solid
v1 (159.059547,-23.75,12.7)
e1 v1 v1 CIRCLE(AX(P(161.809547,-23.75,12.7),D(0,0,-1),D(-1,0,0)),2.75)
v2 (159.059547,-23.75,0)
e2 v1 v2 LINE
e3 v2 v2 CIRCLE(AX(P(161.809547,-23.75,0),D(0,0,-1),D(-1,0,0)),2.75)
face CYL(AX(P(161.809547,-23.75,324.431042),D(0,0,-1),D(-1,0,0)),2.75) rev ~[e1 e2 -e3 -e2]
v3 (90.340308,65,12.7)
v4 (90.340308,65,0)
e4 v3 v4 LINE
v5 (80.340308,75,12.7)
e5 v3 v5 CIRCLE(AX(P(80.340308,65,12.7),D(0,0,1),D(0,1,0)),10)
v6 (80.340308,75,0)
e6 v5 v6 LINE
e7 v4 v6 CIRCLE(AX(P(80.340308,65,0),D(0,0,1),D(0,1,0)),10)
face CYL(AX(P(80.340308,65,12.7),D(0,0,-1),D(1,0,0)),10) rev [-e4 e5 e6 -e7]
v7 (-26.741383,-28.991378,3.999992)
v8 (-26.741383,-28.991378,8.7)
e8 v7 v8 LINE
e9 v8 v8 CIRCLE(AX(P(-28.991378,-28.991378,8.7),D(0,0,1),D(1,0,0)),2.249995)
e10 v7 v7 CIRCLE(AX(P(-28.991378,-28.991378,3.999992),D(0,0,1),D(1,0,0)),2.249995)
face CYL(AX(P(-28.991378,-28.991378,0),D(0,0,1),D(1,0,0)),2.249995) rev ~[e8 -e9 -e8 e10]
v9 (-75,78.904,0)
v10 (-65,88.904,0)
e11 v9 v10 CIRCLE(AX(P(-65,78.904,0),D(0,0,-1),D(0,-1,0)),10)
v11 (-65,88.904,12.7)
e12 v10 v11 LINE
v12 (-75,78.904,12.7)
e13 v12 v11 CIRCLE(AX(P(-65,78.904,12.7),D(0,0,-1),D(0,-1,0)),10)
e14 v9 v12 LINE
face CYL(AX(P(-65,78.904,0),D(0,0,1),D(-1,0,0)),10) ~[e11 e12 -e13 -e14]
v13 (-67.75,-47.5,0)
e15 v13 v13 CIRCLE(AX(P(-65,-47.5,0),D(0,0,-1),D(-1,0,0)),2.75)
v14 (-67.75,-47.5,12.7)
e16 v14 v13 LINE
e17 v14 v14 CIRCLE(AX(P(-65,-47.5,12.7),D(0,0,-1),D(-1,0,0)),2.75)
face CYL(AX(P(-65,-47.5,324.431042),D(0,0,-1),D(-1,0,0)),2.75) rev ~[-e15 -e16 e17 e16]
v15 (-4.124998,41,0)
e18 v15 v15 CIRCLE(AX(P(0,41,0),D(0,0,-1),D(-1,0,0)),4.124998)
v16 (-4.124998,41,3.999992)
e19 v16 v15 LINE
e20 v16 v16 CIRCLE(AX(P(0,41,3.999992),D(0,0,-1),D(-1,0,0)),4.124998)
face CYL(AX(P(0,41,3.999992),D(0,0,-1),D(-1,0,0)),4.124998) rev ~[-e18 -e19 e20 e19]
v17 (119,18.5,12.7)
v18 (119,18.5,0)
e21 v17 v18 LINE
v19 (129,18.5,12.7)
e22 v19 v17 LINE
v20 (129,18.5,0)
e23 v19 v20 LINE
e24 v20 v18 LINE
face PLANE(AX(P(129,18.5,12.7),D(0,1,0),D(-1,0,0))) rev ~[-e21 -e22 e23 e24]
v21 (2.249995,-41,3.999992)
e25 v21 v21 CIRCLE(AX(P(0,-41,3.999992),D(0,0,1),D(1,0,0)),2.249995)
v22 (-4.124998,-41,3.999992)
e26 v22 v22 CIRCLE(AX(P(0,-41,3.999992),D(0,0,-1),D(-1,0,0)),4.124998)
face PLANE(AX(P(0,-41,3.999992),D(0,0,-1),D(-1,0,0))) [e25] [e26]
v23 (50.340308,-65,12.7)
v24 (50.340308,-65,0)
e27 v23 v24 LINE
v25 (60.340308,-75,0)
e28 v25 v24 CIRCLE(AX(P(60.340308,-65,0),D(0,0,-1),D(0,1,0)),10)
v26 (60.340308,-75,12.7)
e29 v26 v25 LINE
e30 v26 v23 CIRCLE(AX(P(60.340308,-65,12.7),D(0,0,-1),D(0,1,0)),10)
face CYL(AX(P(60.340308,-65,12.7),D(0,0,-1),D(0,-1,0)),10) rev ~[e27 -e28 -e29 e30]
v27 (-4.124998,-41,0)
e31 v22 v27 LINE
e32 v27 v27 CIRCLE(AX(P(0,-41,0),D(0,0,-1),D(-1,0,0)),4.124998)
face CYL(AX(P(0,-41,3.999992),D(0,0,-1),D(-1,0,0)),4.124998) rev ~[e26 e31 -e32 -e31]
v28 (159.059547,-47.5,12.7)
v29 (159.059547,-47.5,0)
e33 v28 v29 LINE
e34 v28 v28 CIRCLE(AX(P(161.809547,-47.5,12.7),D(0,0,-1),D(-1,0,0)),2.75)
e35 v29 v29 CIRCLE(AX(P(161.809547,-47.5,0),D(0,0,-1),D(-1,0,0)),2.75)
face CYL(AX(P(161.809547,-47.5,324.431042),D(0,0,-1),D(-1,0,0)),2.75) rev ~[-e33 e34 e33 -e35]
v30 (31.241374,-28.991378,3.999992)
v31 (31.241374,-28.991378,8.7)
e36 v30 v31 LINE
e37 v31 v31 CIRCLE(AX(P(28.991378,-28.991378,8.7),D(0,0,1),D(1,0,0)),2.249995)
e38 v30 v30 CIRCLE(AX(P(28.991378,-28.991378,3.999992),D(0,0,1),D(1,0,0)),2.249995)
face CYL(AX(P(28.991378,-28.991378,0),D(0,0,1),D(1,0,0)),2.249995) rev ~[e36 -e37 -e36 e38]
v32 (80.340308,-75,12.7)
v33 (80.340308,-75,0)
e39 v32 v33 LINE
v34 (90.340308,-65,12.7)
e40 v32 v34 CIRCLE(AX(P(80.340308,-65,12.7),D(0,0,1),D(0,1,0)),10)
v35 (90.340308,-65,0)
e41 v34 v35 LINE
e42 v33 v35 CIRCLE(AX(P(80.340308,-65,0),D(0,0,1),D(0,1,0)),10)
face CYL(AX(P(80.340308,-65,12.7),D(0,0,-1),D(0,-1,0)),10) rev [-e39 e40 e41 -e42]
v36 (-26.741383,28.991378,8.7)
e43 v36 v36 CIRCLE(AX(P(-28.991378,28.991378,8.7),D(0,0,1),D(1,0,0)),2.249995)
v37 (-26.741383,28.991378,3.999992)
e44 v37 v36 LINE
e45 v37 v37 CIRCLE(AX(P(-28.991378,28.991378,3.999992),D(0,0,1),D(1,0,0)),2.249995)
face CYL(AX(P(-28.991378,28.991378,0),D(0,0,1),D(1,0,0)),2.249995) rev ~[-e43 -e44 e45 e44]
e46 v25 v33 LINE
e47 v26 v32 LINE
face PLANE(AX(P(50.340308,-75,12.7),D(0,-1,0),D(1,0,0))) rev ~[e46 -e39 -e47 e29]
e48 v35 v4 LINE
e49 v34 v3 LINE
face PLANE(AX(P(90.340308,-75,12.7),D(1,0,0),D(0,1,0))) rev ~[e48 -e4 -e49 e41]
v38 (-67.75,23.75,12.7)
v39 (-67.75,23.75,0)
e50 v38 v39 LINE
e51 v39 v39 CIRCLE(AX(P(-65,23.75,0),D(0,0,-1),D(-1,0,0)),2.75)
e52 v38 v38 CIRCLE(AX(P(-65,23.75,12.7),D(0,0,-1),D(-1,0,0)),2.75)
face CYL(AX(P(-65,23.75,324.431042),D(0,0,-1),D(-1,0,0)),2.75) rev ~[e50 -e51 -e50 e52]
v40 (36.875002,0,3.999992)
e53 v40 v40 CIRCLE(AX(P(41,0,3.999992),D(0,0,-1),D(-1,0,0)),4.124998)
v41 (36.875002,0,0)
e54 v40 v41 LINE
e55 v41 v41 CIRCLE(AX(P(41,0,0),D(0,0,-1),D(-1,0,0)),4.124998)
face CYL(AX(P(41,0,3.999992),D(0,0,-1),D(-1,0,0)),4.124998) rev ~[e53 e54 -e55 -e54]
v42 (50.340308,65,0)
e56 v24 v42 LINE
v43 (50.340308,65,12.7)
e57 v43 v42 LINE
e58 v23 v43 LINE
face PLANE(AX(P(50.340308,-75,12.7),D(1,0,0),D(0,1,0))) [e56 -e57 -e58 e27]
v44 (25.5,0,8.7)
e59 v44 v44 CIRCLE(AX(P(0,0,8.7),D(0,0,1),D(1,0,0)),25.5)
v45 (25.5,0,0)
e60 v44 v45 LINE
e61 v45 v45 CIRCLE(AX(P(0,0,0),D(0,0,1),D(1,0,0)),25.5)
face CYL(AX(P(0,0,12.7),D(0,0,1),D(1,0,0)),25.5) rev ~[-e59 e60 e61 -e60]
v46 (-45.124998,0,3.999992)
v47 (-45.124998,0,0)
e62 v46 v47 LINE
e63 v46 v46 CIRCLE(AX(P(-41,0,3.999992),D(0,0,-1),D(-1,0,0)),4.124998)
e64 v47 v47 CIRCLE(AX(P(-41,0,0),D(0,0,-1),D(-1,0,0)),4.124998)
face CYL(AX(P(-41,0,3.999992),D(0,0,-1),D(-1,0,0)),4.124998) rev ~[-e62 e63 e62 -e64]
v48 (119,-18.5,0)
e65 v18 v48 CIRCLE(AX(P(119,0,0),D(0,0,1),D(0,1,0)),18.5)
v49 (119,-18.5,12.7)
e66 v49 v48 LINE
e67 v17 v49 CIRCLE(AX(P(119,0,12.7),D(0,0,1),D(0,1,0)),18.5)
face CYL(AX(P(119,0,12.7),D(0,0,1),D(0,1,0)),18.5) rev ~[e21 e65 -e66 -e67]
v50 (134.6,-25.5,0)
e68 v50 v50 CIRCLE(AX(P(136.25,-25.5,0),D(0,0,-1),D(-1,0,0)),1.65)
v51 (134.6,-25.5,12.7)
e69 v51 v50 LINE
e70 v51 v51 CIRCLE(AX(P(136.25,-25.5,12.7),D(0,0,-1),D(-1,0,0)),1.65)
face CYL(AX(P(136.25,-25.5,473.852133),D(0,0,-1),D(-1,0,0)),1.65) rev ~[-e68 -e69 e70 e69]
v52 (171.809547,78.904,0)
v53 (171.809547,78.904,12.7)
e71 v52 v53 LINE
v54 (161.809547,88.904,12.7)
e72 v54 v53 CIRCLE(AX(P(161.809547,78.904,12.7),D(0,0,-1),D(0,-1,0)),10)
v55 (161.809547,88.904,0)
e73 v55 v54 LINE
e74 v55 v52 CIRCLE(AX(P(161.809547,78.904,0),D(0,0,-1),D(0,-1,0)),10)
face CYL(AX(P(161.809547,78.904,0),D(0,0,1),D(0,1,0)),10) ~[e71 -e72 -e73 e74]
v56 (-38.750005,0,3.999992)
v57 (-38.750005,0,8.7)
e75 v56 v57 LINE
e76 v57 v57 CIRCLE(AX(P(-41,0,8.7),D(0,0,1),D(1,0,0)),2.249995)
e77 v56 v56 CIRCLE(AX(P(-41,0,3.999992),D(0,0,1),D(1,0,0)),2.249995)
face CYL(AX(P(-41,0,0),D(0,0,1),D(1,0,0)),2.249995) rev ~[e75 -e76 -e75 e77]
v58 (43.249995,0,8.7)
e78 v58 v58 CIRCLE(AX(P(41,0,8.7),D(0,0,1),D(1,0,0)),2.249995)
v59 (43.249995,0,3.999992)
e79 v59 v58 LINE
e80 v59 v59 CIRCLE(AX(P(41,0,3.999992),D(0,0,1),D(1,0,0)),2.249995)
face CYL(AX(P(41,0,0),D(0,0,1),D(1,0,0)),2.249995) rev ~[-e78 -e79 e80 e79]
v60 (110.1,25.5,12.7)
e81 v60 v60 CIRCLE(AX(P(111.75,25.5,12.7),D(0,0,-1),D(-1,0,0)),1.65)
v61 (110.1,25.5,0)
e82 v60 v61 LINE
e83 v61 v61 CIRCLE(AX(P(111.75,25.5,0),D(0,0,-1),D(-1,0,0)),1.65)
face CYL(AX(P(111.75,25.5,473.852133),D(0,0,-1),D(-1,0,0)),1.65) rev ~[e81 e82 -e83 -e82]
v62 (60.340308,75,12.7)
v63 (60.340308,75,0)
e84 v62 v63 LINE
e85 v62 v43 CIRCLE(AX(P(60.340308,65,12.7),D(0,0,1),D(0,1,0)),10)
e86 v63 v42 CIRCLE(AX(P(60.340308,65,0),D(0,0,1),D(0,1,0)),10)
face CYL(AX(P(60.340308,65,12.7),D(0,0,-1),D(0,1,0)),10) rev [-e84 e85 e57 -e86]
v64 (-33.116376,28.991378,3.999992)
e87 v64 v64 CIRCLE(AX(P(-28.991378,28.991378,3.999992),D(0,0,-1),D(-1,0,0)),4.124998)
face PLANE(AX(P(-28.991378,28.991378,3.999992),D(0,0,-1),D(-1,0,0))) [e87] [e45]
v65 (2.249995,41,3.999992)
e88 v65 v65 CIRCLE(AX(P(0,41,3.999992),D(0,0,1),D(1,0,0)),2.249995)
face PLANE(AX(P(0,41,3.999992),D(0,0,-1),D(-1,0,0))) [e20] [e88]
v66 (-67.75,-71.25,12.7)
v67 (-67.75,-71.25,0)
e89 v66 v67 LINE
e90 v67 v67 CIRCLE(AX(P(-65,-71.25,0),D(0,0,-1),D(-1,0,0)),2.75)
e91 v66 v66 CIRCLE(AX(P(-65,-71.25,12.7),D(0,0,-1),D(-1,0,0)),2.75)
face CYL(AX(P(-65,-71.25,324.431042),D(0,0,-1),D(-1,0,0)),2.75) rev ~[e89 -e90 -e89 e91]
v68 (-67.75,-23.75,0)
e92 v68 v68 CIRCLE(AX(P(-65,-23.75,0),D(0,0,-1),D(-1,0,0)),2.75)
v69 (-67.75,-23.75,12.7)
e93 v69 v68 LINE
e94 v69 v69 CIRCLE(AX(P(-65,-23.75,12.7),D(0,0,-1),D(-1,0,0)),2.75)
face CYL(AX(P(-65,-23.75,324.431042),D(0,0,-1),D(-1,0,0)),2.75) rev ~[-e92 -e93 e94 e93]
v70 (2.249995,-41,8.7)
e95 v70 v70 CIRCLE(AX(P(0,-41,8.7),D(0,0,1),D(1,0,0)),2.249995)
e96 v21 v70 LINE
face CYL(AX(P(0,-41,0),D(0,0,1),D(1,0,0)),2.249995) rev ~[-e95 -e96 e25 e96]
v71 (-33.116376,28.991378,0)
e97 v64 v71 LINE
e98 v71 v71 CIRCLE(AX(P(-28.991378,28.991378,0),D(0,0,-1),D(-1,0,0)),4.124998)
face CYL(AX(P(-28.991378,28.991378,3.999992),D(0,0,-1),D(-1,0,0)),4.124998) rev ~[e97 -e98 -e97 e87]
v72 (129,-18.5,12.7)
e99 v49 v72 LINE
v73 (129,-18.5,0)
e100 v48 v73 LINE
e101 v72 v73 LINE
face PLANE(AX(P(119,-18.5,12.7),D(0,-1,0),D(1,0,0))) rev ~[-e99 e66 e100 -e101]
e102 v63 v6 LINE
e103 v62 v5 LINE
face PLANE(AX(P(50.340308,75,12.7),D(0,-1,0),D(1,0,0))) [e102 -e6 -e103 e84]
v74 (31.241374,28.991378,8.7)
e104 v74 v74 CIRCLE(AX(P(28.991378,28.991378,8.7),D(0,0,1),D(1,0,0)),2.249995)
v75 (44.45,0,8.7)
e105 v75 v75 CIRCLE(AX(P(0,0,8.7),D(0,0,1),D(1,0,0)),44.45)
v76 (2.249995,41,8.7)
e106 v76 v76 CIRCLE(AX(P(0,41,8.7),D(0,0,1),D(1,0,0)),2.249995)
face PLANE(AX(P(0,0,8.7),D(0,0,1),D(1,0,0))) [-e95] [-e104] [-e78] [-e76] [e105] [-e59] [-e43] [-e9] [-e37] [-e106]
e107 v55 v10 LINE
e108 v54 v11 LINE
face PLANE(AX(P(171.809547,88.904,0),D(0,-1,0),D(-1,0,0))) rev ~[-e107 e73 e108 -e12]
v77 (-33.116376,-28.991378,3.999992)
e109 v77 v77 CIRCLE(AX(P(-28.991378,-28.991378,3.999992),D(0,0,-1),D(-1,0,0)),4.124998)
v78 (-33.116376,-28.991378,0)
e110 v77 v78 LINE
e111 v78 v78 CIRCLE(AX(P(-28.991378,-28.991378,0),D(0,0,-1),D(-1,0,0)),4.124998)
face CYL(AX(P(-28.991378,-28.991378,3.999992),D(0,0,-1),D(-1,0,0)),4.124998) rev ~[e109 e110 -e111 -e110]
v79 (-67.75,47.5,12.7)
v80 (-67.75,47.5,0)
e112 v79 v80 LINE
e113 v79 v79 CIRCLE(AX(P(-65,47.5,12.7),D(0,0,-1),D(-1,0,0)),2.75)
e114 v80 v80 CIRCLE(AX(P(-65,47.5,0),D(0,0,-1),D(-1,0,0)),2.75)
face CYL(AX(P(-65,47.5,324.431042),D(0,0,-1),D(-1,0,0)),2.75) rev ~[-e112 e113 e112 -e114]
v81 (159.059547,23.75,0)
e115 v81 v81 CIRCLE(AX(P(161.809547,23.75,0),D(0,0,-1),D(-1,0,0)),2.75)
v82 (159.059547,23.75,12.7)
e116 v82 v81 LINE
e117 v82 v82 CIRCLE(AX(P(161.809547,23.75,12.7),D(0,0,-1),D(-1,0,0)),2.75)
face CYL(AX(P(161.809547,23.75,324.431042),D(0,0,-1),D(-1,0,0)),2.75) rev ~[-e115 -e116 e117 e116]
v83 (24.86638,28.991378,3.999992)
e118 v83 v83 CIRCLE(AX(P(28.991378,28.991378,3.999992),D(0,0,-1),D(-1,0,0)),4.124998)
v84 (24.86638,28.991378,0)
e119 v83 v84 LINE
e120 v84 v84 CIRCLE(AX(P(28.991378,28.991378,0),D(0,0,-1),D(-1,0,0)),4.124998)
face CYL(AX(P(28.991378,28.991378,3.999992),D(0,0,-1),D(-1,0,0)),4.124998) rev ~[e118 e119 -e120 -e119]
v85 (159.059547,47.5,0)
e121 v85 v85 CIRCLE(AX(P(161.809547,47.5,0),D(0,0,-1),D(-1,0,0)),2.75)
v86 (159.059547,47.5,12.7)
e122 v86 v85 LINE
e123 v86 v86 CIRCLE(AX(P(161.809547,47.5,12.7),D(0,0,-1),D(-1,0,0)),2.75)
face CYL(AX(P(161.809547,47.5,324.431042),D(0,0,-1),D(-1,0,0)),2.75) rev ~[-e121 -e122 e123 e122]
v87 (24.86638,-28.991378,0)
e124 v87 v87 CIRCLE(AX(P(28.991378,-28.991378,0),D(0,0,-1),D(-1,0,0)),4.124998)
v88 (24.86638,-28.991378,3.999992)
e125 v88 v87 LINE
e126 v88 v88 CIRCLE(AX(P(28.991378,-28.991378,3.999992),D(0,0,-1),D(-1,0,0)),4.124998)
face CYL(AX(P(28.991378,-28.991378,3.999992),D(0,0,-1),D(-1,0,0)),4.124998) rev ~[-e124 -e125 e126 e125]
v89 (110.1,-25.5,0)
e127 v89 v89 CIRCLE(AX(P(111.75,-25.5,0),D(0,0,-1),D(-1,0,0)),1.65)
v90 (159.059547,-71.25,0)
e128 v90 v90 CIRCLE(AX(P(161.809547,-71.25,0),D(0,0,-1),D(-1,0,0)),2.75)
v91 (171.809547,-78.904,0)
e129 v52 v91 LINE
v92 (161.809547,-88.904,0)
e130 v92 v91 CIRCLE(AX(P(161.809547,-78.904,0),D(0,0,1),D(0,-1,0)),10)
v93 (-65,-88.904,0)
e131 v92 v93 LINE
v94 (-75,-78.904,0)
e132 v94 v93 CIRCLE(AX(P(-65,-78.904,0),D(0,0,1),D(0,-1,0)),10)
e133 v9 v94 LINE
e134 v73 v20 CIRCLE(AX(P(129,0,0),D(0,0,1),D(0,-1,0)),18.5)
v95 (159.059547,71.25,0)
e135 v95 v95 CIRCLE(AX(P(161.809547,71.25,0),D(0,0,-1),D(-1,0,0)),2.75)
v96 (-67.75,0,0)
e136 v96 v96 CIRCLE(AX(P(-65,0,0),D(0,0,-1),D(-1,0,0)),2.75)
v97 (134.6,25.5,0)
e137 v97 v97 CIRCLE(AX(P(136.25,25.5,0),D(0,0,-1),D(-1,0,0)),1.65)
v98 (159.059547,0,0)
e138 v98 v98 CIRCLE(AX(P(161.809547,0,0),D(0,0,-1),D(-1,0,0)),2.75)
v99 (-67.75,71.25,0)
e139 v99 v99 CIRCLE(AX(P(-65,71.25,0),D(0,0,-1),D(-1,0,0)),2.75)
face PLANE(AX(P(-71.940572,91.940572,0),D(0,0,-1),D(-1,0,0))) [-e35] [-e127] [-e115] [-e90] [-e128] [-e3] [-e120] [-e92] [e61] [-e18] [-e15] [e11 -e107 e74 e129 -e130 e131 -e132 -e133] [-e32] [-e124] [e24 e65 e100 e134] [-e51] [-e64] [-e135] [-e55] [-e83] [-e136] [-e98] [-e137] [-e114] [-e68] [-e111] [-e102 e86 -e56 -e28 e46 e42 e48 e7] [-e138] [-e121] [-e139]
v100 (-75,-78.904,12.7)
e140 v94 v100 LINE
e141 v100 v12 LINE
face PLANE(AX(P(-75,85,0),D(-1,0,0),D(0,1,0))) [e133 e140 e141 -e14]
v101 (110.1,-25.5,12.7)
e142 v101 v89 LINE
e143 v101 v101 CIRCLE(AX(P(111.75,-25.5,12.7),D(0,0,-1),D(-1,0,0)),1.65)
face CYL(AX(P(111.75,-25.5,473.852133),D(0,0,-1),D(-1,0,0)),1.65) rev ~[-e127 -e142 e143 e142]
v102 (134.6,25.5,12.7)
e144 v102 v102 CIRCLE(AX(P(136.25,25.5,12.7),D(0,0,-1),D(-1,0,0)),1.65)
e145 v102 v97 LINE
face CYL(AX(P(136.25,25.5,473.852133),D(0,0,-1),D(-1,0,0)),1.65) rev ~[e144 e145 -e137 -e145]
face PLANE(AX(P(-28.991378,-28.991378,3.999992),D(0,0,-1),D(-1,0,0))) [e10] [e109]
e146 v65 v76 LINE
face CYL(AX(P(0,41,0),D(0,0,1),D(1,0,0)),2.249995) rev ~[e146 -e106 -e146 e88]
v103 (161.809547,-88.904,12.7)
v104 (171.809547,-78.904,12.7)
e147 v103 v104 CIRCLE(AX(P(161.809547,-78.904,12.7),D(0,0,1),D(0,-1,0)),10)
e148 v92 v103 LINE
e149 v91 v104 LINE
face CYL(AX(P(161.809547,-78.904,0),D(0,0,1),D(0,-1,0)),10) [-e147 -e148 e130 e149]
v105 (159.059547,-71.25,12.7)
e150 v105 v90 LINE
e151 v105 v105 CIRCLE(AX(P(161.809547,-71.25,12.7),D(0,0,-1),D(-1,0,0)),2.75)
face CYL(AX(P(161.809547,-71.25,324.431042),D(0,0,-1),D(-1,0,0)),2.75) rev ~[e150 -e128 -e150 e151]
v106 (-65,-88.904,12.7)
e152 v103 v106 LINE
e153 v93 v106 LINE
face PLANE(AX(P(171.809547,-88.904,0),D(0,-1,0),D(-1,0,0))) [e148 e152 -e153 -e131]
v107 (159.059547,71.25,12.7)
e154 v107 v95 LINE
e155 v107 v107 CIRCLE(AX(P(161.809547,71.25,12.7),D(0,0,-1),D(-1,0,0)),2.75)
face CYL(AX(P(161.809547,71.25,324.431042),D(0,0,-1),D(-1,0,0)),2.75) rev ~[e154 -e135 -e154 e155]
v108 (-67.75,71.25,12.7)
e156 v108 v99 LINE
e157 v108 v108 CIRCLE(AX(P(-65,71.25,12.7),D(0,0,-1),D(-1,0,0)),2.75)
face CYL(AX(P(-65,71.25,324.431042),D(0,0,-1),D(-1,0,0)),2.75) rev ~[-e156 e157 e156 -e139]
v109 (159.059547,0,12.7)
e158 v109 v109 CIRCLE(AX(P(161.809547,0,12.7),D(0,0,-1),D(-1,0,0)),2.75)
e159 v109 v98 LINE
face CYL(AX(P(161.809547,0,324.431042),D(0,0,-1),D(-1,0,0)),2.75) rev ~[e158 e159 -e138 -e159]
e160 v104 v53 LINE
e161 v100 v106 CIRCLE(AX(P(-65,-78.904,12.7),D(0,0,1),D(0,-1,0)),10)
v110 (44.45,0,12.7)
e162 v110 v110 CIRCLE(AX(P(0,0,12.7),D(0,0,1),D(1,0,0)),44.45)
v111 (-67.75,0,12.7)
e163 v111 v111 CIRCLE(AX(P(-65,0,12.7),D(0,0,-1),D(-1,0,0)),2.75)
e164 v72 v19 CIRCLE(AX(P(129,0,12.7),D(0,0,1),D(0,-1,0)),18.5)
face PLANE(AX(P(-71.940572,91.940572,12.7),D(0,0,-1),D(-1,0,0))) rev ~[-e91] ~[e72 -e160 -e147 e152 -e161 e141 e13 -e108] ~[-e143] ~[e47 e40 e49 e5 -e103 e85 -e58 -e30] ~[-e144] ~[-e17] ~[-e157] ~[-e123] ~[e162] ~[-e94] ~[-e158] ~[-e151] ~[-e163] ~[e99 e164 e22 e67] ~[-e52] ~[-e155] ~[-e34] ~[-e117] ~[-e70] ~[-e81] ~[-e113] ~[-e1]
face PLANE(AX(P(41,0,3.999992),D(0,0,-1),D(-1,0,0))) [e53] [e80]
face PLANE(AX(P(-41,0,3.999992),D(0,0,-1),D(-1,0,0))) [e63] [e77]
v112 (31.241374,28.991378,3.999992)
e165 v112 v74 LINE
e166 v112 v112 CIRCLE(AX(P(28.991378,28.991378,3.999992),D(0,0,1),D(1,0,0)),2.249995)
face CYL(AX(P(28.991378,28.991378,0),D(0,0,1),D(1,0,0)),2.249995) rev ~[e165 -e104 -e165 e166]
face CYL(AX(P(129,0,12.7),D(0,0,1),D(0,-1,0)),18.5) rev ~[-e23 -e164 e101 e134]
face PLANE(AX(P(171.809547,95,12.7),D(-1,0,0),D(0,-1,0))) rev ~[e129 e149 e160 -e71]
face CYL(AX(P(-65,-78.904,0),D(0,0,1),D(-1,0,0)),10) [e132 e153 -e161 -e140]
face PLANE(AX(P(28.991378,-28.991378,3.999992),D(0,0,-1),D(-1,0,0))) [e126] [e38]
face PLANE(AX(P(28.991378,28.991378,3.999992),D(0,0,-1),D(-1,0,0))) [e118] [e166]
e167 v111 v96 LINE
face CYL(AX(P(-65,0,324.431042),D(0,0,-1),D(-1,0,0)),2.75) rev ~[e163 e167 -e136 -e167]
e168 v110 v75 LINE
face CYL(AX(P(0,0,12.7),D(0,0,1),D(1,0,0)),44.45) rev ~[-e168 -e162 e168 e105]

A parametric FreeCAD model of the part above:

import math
import FreeCAD as App
import Part
import Sketcher

V = App.Vector
Q = App.Units.Quantity


def edges_at(feature, points):
    """Names of the edges that pass closest to the given points."""
    edges = feature.Shape.Edges
    near = lambda p: min(range(len(edges)), key=lambda i: edges[i].distToShape(Part.Vertex(*p))[0])
    return sorted({f"Edge{near(p) + 1}" for p in points})


def add_polygon(sketch, points):
    """Adds a closed chain of lines whose ends are joined by coincident constraints."""
    first, n = sketch.GeometryCount, len(points)
    for a, b in zip(points, points[1:] + points[:1]):
        sketch.addGeometry(Part.LineSegment(App.Vector(*a, 0), App.Vector(*b, 0)), False)
    for i in range(n):
        sketch.addConstraint(Sketcher.Constraint("Coincident", first + i, 2, first + (i + 1) % n, 1))

doc = App.newDocument("Part")
body = doc.addObject("PartDesign::Body", "Body")

# Sketch on XY plane
sketch1 = body.newObject("Sketcher::SketchObject", "Sketch")
sketch1.AttachmentSupport = (doc.getObject("XY_Plane"), [""])
sketch1.MapMode = "FlatFace"
add_polygon(sketch1, [(-210, 95), (-210, -95), (210, -95), (210, 95)])  # lines 0-3
sketch1.addConstraint([
    Sketcher.Constraint("Vertical", 0),
    Sketcher.Constraint("Horizontal", 1),
    Sketcher.Constraint("Vertical", 2),
    Sketcher.Constraint("Horizontal", 3),
    Sketcher.Constraint("Symmetric", 0, 2, 2, 2, -1, 1),
    Sketcher.Constraint("DistanceX", 1, 1, 1, 2, Q("420 mm")),
    Sketcher.Constraint("DistanceY", 0, 2, 0, 1, Q("190 mm")),
])
pad1 = body.newObject("PartDesign::Pad", "Pad")
pad1.Profile = sketch1
pad1.Length = 12.7
doc.recompute()

fillet = body.newObject("PartDesign::Fillet", "Fillet")
fillet.Base = (pad1, edges_at(pad1, [
    (210, -95, 6.35),
    (-210, -95, 6.35),
    (-210, 95, 6.35),
    (210, 95, 6.35),
]))
fillet.Radius = 10

# Sketch on XY plane
sketch2 = body.newObject("Sketcher::SketchObject", "Sketch001")
sketch2.AttachmentSupport = (doc.getObject("XY_Plane"), [""])
sketch2.MapMode = "FlatFace"
sketch2.AttachmentOffset = App.Placement(V(0, 0, 12.7), App.Rotation())
sketch2.addGeometry(Part.Circle(V(0, 0, 0), V(0, 0, 1), 44), False)
sketch2.addConstraint([
    Sketcher.Constraint("Coincident", 0, 3, -1, 1),
    Sketcher.Constraint("Diameter", 0, Q("88.9 mm")),
])
pocket1 = body.newObject("PartDesign::Pocket", "Pocket")
pocket1.Profile = sketch2
pocket1.Length = 4

# Sketch on XY plane
sketch3 = body.newObject("Sketcher::SketchObject", "Sketch002")
sketch3.AttachmentSupport = (doc.getObject("XY_Plane"), [""])
sketch3.MapMode = "FlatFace"
sketch3.AttachmentOffset = App.Placement(V(0, 0, 12.7), App.Rotation())
sketch3.addGeometry(Part.Circle(V(0, 0, 0), V(0, 0, 1), 26), False)
sketch3.addConstraint([
    Sketcher.Constraint("Coincident", 0, 3, -1, 1),
    Sketcher.Constraint("Diameter", 0, Q("51 mm")),
])
pocket2 = body.newObject("PartDesign::Pocket", "Pocket001")
pocket2.Profile = sketch3
pocket2.Type = "ThroughAll"

# Sketch on XY plane
sketch4 = body.newObject("Sketcher::SketchObject", "Sketch003")
sketch4.AttachmentSupport = (doc.getObject("XY_Plane"), [""])
sketch4.MapMode = "FlatFace"
sketch4.addGeometry([
    Part.Circle(V(0, 41, 0), V(0, 0, 1), 2.2),  # 0
    Part.Circle(V(0, -41, 0), V(0, 0, 1), 2.2),  # 1
    Part.Circle(V(-29, -29, 0), V(0, 0, 1), 2.2),  # 2
    Part.Circle(V(29, -29, 0), V(0, 0, 1), 2.2),  # 3
    Part.Circle(V(41, 0, 0), V(0, 0, 1), 2.2),  # 4
    Part.Circle(V(-41, 0, 0), V(0, 0, 1), 2.2),  # 5
    Part.Circle(V(29, 29, 0), V(0, 0, 1), 2.2),  # 6
    Part.Circle(V(-29, 29, 0), V(0, 0, 1), 2.2),  # 7
], False)
sketch4.addConstraint([
    Sketcher.Constraint("Equal", 0, 1),
    Sketcher.Constraint("Equal", 1, 2),
    Sketcher.Constraint("Equal", 2, 3),
    Sketcher.Constraint("Equal", 3, 4),
    Sketcher.Constraint("Equal", 4, 5),
    Sketcher.Constraint("Equal", 5, 6),
    Sketcher.Constraint("Equal", 6, 7),
    Sketcher.Constraint("Symmetric", 0, 3, 1, 3, -1, 1),
    Sketcher.Constraint("Symmetric", 4, 3, 5, 3, -1, 1),
    Sketcher.Constraint("Symmetric", 2, 3, 6, 3, -1, 1),
    Sketcher.Constraint("Symmetric", 3, 3, 7, 3, -1, 1),
    Sketcher.Constraint("Symmetric", 2, 3, 3, 3, -2),
    Sketcher.Constraint("PointOnObject", 0, 3, -2),
    Sketcher.Constraint("PointOnObject", 4, 3, -1),
    Sketcher.Constraint("DistanceY", -1, 1, 0, 3, Q("41 mm")),
    Sketcher.Constraint("DistanceX", -1, 1, 4, 3, Q("41 mm")),
    Sketcher.Constraint("Diameter", 0, Q("4.499991 mm")),
    Sketcher.Constraint("DistanceX", 2, 3, -1, 1, Q("28.991378 mm")),
    Sketcher.Constraint("DistanceY", 2, 3, -1, 1, Q("28.991378 mm")),
])
doc.recompute()
hole = body.newObject("PartDesign::Hole", "Hole")
hole.Profile = sketch4
hole.ThreadType = "None"
hole.Diameter = 4.499991
hole.DepthType = "Dimension"
hole.Depth = 10
hole.DrillPoint = "Angled"
hole.DrillPointAngle = 118
hole.HoleCutType = "Counterbore"
hole.HoleCutDiameter = 8.249996
hole.HoleCutDepth = 3.999992
hole.Reversed = True

# Sketch on XY plane
sketch5 = body.newObject("Sketcher::SketchObject", "Sketch004")
sketch5.AttachmentSupport = (doc.getObject("XY_Plane"), [""])
sketch5.MapMode = "FlatFace"
sketch5.AttachmentOffset = App.Placement(V(0, 0, 12.7), App.Rotation())
sketch5.addGeometry([
    Part.LineSegment(V(119, -18, 0), V(129, -18, 0)),
    Part.ArcOfCircle(Part.Circle(V(129, 0, 0), V(0, 0, 1), 18), math.radians(-90), math.radians(90)),
    Part.LineSegment(V(129, 18, 0), V(119, 18, 0)),
    Part.ArcOfCircle(Part.Circle(V(119, 0, 0), V(0, 0, 1), 18), math.radians(90), math.radians(270)),
], False)
sketch5.addConstraint([
    Sketcher.Constraint("Tangent", 0, 2, 1, 1),
    Sketcher.Constraint("Tangent", 1, 2, 2, 1),
    Sketcher.Constraint("Tangent", 2, 2, 3, 1),
    Sketcher.Constraint("Tangent", 3, 2, 0, 1),
    Sketcher.Constraint("Horizontal", 0),
    Sketcher.Constraint("Horizontal", 2),
    Sketcher.Constraint("PointOnObject", 1, 3, -1),
    Sketcher.Constraint("Radius", 1, Q("18.5 mm")),
    Sketcher.Constraint("DistanceX", 0, 1, 0, 2, Q("10 mm")),
    Sketcher.Constraint("DistanceX", -1, 1, 1, 3, Q("129 mm")),
])
pocket3 = body.newObject("PartDesign::Pocket", "Pocket002")
pocket3.Profile = sketch5
pocket3.Type = "ThroughAll"

# Sketch on XY plane
sketch6 = body.newObject("Sketcher::SketchObject", "Sketch005")
sketch6.AttachmentSupport = (doc.getObject("XY_Plane"), [""])
sketch6.MapMode = "FlatFace"
sketch6.AttachmentOffset = App.Placement(V(0, 0, 12.7), App.Rotation())
sketch6.addGeometry([
    Part.Circle(V(111.8, 25.5, 0), V(0, 0, 1), 1.6),
    Part.Circle(V(136.2, 25.5, 0), V(0, 0, 1), 1.6),
    Part.Circle(V(111.8, -25.5, 0), V(0, 0, 1), 1.6),
    Part.Circle(V(136.2, -25.5, 0), V(0, 0, 1), 1.6),
], False)
sketch6.addConstraint([
    Sketcher.Constraint("Equal", 0, 1),
    Sketcher.Constraint("Equal", 1, 2),
    Sketcher.Constraint("Equal", 2, 3),
    Sketcher.Constraint("Symmetric", 0, 3, 2, 3, -1),
    Sketcher.Constraint("Symmetric", 1, 3, 3, 3, -1),
    Sketcher.Constraint("Horizontal", 0, 3, 1, 3),
    Sketcher.Constraint("Diameter", 0, Q("3.3 mm")),
    Sketcher.Constraint("DistanceY", 2, 3, 0, 3, Q("51 mm")),
    Sketcher.Constraint("DistanceX", 0, 3, 1, 3, Q("24.5 mm")),
    Sketcher.Constraint("DistanceX", -1, 1, 0, 3, Q("111.75 mm")),
])
doc.recompute()
hole2 = body.newObject("PartDesign::Hole", "Hole001")
hole2.Profile = sketch6
hole2.ThreadType = "None"
hole2.Diameter = 3.3
hole2.DepthType = "ThroughAll"

# Sketch on XY plane
sketch7 = body.newObject("Sketcher::SketchObject", "Sketch006")
sketch7.AttachmentSupport = (doc.getObject("XY_Plane"), [""])
sketch7.MapMode = "FlatFace"
sketch7.AttachmentOffset = App.Placement(V(0, 0, 12.7), App.Rotation())
add_polygon(sketch7, [(-210, 95), (-210, -95), (-75, -95), (-75, 95)])  # lines 0-3
sketch7.addConstraint([
    Sketcher.Constraint("Vertical", 0),
    Sketcher.Constraint("Horizontal", 1),
    Sketcher.Constraint("Vertical", 2),
    Sketcher.Constraint("Horizontal", 3),
    Sketcher.Constraint("DistanceX", 1, 1, 1, 2, Q("135 mm")),
    Sketcher.Constraint("DistanceY", 0, 2, 0, 1, Q("190 mm")),
    Sketcher.Constraint("DistanceX", 0, 2, -1, 1, Q("210 mm")),
    Sketcher.Constraint("DistanceY", 0, 2, -1, 1, Q("95 mm")),
])
pocket4 = body.newObject("PartDesign::Pocket", "Pocket003")
pocket4.Profile = sketch7
pocket4.Type = "ThroughAll"
doc.recompute()

fillet2 = body.newObject("PartDesign::Fillet", "Fillet001")
fillet2.Base = (pocket4, edges_at(pocket4, [(-75, 95, 6.35), (-75, -95, 6.35)]))
fillet2.Radius = 10

# Sketch on XY plane
sketch8 = body.newObject("Sketcher::SketchObject", "Sketch007")
sketch8.AttachmentSupport = (doc.getObject("XY_Plane"), [""])
sketch8.MapMode = "FlatFace"
sketch8.AttachmentOffset = App.Placement(V(0, 0, 12.7), App.Rotation())
add_polygon(sketch8, [(172, 75), (172, -75), (210, -75), (210, 75)])  # lines 0-3
sketch8.addConstraint([
    Sketcher.Constraint("Vertical", 0),
    Sketcher.Constraint("Horizontal", 1),
    Sketcher.Constraint("Vertical", 2),
    Sketcher.Constraint("Horizontal", 3),
    Sketcher.Constraint("DistanceY", 0, 2, 0, 1, Q("150 mm")),
    Sketcher.Constraint("DistanceY", 0, 2, -1, 1, Q("75 mm")),
    Sketcher.Constraint("DistanceX", -1, 1, 1, 2, Q("210 mm")),
    Sketcher.Constraint("DistanceX", 1, 1, 1, 2, Q("38.190453 mm")),
])
pocket5 = body.newObject("PartDesign::Pocket", "Pocket004")
pocket5.Profile = sketch8
pocket5.Type = "ThroughAll"

# Sketch on XY plane
sketch9 = body.newObject("Sketcher::SketchObject", "Sketch008")
sketch9.AttachmentSupport = (doc.getObject("XY_Plane"), [""])
sketch9.MapMode = "FlatFace"
sketch9.AttachmentOffset = App.Placement(V(0, 0, 12.7), App.Rotation())
add_polygon(sketch9, [(50, 75), (50, -75), (90, -75), (90, 75)])  # lines 0-3
sketch9.addConstraint([
    Sketcher.Constraint("Vertical", 0),
    Sketcher.Constraint("Horizontal", 1),
    Sketcher.Constraint("Vertical", 2),
    Sketcher.Constraint("Horizontal", 3),
    Sketcher.Constraint("DistanceX", 1, 1, 1, 2, Q("40 mm")),
    Sketcher.Constraint("DistanceY", 0, 2, 0, 1, Q("150 mm")),
    Sketcher.Constraint("DistanceY", 0, 2, -1, 1, Q("75 mm")),
    Sketcher.Constraint("DistanceX", -1, 1, 0, 2, Q("50.340308 mm")),
])
pocket6 = body.newObject("PartDesign::Pocket", "Pocket005")
pocket6.Profile = sketch9
pocket6.Type = "ThroughAll"
doc.recompute()

fillet3 = body.newObject("PartDesign::Fillet", "Fillet002")
fillet3.Base = (pocket6, edges_at(pocket6, [
    (90.34, 75, 6.35),
    (90.34, -75, 6.35),
    (50.34, -75, 6.35),
    (50.34, 75, 6.35),
]))
fillet3.Radius = 10

# Sketch on XY plane
sketch10 = body.newObject("Sketcher::SketchObject", "Sketch009")
sketch10.AttachmentSupport = (doc.getObject("XY_Plane"), [""])
sketch10.MapMode = "FlatFace"
sketch10.AttachmentOffset = App.Placement(V(0, 0, 12.7), App.Rotation())
add_polygon(sketch10, [(172, -95), (219, -95), (219, 95), (172, 95)])  # lines 0-3
sketch10.addConstraint([
    Sketcher.Constraint("Horizontal", 0),
    Sketcher.Constraint("Vertical", 1),
    Sketcher.Constraint("Horizontal", 2),
    Sketcher.Constraint("Vertical", 3),
    Sketcher.Constraint("DistanceY", 1, 1, 1, 2, Q("190 mm")),
    Sketcher.Constraint("DistanceY", 0, 2, -1, 1, Q("95 mm")),
    Sketcher.Constraint("DistanceX", 0, 1, 0, 2, Q("47.576998 mm")),
    Sketcher.Constraint("DistanceX", -1, 1, 0, 2, Q("219.386545 mm")),
])
pocket7 = body.newObject("PartDesign::Pocket", "Pocket006")
pocket7.Profile = sketch10
pocket7.Type = "ThroughAll"
pocket7.Midplane = True
doc.recompute()

fillet4 = body.newObject("PartDesign::Fillet", "Fillet003")
fillet4.Base = (pocket7, edges_at(pocket7, [(171.81, -95, 6.35), (171.81, 95, 6.35)]))
fillet4.Radius = 10

# Sketch on XY plane
sketch11 = body.newObject("Sketcher::SketchObject", "Sketch010")
sketch11.AttachmentSupport = (doc.getObject("XY_Plane"), [""])
sketch11.MapMode = "FlatFace"
sketch11.AttachmentOffset = App.Placement(V(0, 0, 12.7), App.Rotation())
sketch11.addGeometry([
    Part.Circle(V(161.8, -71.2, 0), V(0, 0, 1), 2.8),  # 0
    Part.Circle(V(161.8, -47.5, 0), V(0, 0, 1), 2.8),  # 1
    Part.Circle(V(161.8, -23.8, 0), V(0, 0, 1), 2.8),  # 2
    Part.Circle(V(161.8, 0, 0), V(0, 0, 1), 2.8),  # 3
    Part.Circle(V(161.8, 23.8, 0), V(0, 0, 1), 2.8),  # 4
    Part.Circle(V(161.8, 47.5, 0), V(0, 0, 1), 2.8),  # 5
    Part.Circle(V(161.8, 71.2, 0), V(0, 0, 1), 2.8),  # 6
    Part.Circle(V(-65, 71.2, 0), V(0, 0, 1), 2.8),  # 7
    Part.Circle(V(-65, 47.5, 0), V(0, 0, 1), 2.8),  # 8
    Part.Circle(V(-65, 23.8, 0), V(0, 0, 1), 2.8),  # 9
    Part.Circle(V(-65, 0, 0), V(0, 0, 1), 2.8),  # 10
    Part.Circle(V(-65, -23.8, 0), V(0, 0, 1), 2.8),  # 11
    Part.Circle(V(-65, -47.5, 0), V(0, 0, 1), 2.8),  # 12
    Part.Circle(V(-65, -71.2, 0), V(0, 0, 1), 2.8),  # 13
], False)
sketch11.addConstraint([
    Sketcher.Constraint("Equal", 0, 1),
    Sketcher.Constraint("Equal", 1, 2),
    Sketcher.Constraint("Equal", 2, 3),
    Sketcher.Constraint("Equal", 3, 4),
    Sketcher.Constraint("Equal", 4, 5),
    Sketcher.Constraint("Equal", 5, 6),
    Sketcher.Constraint("Equal", 6, 7),
    Sketcher.Constraint("Equal", 7, 8),
    Sketcher.Constraint("Equal", 8, 9),
    Sketcher.Constraint("Equal", 9, 10),
    Sketcher.Constraint("Equal", 10, 11),
    Sketcher.Constraint("Equal", 11, 12),
    Sketcher.Constraint("Equal", 12, 13),
    Sketcher.Constraint("Symmetric", 2, 3, 4, 3, -1),
    Sketcher.Constraint("Symmetric", 1, 3, 5, 3, -1),
    Sketcher.Constraint("Symmetric", 0, 3, 6, 3, -1),
    Sketcher.Constraint("Symmetric", 9, 3, 11, 3, -1),
    Sketcher.Constraint("Symmetric", 8, 3, 12, 3, -1),
    Sketcher.Constraint("Symmetric", 7, 3, 13, 3, -1),
    Sketcher.Constraint("PointOnObject", 3, 3, -1),
    Sketcher.Constraint("PointOnObject", 10, 3, -1),
    Sketcher.Constraint("Horizontal", 6, 3, 7, 3),
    Sketcher.Constraint("Horizontal", 5, 3, 8, 3),
    Sketcher.Constraint("Horizontal", 4, 3, 9, 3),
    Sketcher.Constraint("Vertical", 0, 3, 1, 3),
    Sketcher.Constraint("Vertical", 1, 3, 2, 3),
    Sketcher.Constraint("Vertical", 2, 3, 3, 3),
    Sketcher.Constraint("Vertical", 7, 3, 8, 3),
    Sketcher.Constraint("Vertical", 8, 3, 9, 3),
    Sketcher.Constraint("Vertical", 9, 3, 10, 3),
    Sketcher.Constraint("Diameter", 0, Q("5.5 mm")),
    Sketcher.Constraint("DistanceX", 7, 3, -1, 1, Q("65 mm")),
    Sketcher.Constraint("DistanceY", 0, 3, 4, 3, Q("95 mm")),
    Sketcher.Constraint("DistanceY", 1, 3, 5, 3, Q("95 mm")),
    Sketcher.Constraint("DistanceY", 0, 3, 2, 3, Q("47.5 mm")),
    Sketcher.Constraint("DistanceX", -1, 1, 0, 3, Q("161.809547 mm")),
])
doc.recompute()
hole3 = body.newObject("PartDesign::Hole", "Hole002")
hole3.Profile = sketch11
hole3.ThreadType = "None"
hole3.Diameter = 5.5
hole3.DepthType = "ThroughAll"

# Sketch on XY plane
sketch12 = body.newObject("Sketcher::SketchObject", "Sketch011")
sketch12.AttachmentSupport = (doc.getObject("XY_Plane"), [""])
sketch12.MapMode = "FlatFace"
sketch12.addGeometry([
    Part.LineSegment(V(-75, 85, 0), V(-75, 95, 0)),  # 0
    Part.LineSegment(V(-75, 95, 0), V(-65, 95, 0)),  # 1
    Part.ArcOfCircle(Part.Circle(V(-65, 85, 0), V(0, 0, 1), 10), math.radians(90), math.radians(180)),  # 2
    Part.LineSegment(V(-65, -95, 0), V(-75, -95, 0)),  # 3
    Part.LineSegment(V(-75, -95, 0), V(-75, -85, 0)),  # 4
    Part.ArcOfCircle(Part.Circle(V(-65, -85, 0), V(0, 0, 1), 10), math.radians(180), math.radians(270)),  # 5
    Part.LineSegment(V(172, -85, 0), V(172, -95, 0)),  # 6
    Part.LineSegment(V(172, -95, 0), V(162, -95, 0)),  # 7
    Part.ArcOfCircle(Part.Circle(V(162, -85, 0), V(0, 0, 1), 10), math.radians(-90), math.radians(0)),  # 8
    Part.LineSegment(V(162, 95, 0), V(172, 95, 0)),  # 9
    Part.LineSegment(V(172, 95, 0), V(172, 85, 0)),  # 10
    Part.ArcOfCircle(Part.Circle(V(162, 85, 0), V(0, 0, 1), 10), math.radians(0), math.radians(90)),  # 11
], False)
sketch12.addConstraint([
    Sketcher.Constraint("Coincident", 0, 2, 1, 1),
    Sketcher.Constraint("Tangent", 1, 2, 2, 1),
    Sketcher.Constraint("Tangent", 2, 2, 0, 1),
    Sketcher.Constraint("Coincident", 3, 2, 4, 1),
    Sketcher.Constraint("Tangent", 4, 2, 5, 1),
    Sketcher.Constraint("Tangent", 5, 2, 3, 1),
    Sketcher.Constraint("Coincident", 6, 2, 7, 1),
    Sketcher.Constraint("Tangent", 7, 2, 8, 1),
    Sketcher.Constraint("Tangent", 8, 2, 6, 1),
    Sketcher.Constraint("Coincident", 9, 2, 10, 1),
    Sketcher.Constraint("Tangent", 10, 2, 11, 1),
    Sketcher.Constraint("Tangent", 11, 2, 9, 1),
    Sketcher.Constraint("Vertical", 0),
    Sketcher.Constraint("Horizontal", 1),
    Sketcher.Constraint("Horizontal", 3),
    Sketcher.Constraint("Vertical", 4),
    Sketcher.Constraint("Vertical", 6),
    Sketcher.Constraint("Horizontal", 7),
    Sketcher.Constraint("Horizontal", 9),
    Sketcher.Constraint("Vertical", 10),
    Sketcher.Constraint("Equal", 2, 5),
    Sketcher.Constraint("Equal", 5, 8),
    Sketcher.Constraint("Equal", 8, 11),
    Sketcher.Constraint("Symmetric", 2, 3, 5, 3, -1),
    Sketcher.Constraint("Symmetric", 8, 3, 11, 3, -1),
    Sketcher.Constraint("Horizontal", 5, 3, 8, 3),
    Sketcher.Constraint("Radius", 2, Q("10 mm")),
    Sketcher.Constraint("DistanceX", 2, 3, -1, 1, Q("65 mm")),
    Sketcher.Constraint("DistanceY", -1, 1, 2, 3, Q("85 mm")),
    Sketcher.Constraint("DistanceX", -1, 1, 8, 3, Q("161.809547 mm")),
])
pad2 = body.newObject("PartDesign::Pad", "Pad001")
pad2.Profile = sketch12
pad2.Length = 12.7

# Sketch on XY plane
sketch13 = body.newObject("Sketcher::SketchObject", "Sketch012")
sketch13.AttachmentSupport = (doc.getObject("XY_Plane"), [""])
sketch13.MapMode = "FlatFace"
add_polygon(sketch13, [(172, 95), (172, 89), (-75, 89), (-75, 95)])  # lines 0-3
add_polygon(sketch13, [(172, -89), (172, -95), (-75, -95), (-75, -89)])  # lines 4-7
sketch13.addConstraint([
    Sketcher.Constraint("Vertical", 0),
    Sketcher.Constraint("Horizontal", 1),
    Sketcher.Constraint("Vertical", 2),
    Sketcher.Constraint("Horizontal", 3),
    Sketcher.Constraint("Vertical", 4),
    Sketcher.Constraint("Horizontal", 5),
    Sketcher.Constraint("Vertical", 6),
    Sketcher.Constraint("Horizontal", 7),
    Sketcher.Constraint("Symmetric", 3, 2, 4, 2, -1),
    Sketcher.Constraint("Symmetric", 1, 2, 6, 2, -1),
    Sketcher.Constraint("DistanceX", 1, 2, -1, 1, Q("75 mm")),
    Sketcher.Constraint("DistanceY", -1, 1, 2, 2, Q("95 mm")),
    Sketcher.Constraint("DistanceY", 0, 2, 0, 1, Q("6.096 mm")),
    Sketcher.Constraint("DistanceX", 1, 2, 1, 1, Q("246.809547 mm")),
])
pocket8 = body.newObject("PartDesign::Pocket", "Pocket007")
pocket8.Profile = sketch13
pocket8.Length = 12.7
pocket8.Reversed = True
doc.recompute()

fillet5 = body.newObject("PartDesign::Fillet", "Fillet004")
fillet5.Base = (pocket8, edges_at(pocket8, [
    (171.81, 88.904, 6.35),
    (-75, 88.904, 6.35),
    (-75, -88.904, 6.35),
    (171.81, -88.904, 6.35),
]))
fillet5.Radius = 10

doc.recompute()
